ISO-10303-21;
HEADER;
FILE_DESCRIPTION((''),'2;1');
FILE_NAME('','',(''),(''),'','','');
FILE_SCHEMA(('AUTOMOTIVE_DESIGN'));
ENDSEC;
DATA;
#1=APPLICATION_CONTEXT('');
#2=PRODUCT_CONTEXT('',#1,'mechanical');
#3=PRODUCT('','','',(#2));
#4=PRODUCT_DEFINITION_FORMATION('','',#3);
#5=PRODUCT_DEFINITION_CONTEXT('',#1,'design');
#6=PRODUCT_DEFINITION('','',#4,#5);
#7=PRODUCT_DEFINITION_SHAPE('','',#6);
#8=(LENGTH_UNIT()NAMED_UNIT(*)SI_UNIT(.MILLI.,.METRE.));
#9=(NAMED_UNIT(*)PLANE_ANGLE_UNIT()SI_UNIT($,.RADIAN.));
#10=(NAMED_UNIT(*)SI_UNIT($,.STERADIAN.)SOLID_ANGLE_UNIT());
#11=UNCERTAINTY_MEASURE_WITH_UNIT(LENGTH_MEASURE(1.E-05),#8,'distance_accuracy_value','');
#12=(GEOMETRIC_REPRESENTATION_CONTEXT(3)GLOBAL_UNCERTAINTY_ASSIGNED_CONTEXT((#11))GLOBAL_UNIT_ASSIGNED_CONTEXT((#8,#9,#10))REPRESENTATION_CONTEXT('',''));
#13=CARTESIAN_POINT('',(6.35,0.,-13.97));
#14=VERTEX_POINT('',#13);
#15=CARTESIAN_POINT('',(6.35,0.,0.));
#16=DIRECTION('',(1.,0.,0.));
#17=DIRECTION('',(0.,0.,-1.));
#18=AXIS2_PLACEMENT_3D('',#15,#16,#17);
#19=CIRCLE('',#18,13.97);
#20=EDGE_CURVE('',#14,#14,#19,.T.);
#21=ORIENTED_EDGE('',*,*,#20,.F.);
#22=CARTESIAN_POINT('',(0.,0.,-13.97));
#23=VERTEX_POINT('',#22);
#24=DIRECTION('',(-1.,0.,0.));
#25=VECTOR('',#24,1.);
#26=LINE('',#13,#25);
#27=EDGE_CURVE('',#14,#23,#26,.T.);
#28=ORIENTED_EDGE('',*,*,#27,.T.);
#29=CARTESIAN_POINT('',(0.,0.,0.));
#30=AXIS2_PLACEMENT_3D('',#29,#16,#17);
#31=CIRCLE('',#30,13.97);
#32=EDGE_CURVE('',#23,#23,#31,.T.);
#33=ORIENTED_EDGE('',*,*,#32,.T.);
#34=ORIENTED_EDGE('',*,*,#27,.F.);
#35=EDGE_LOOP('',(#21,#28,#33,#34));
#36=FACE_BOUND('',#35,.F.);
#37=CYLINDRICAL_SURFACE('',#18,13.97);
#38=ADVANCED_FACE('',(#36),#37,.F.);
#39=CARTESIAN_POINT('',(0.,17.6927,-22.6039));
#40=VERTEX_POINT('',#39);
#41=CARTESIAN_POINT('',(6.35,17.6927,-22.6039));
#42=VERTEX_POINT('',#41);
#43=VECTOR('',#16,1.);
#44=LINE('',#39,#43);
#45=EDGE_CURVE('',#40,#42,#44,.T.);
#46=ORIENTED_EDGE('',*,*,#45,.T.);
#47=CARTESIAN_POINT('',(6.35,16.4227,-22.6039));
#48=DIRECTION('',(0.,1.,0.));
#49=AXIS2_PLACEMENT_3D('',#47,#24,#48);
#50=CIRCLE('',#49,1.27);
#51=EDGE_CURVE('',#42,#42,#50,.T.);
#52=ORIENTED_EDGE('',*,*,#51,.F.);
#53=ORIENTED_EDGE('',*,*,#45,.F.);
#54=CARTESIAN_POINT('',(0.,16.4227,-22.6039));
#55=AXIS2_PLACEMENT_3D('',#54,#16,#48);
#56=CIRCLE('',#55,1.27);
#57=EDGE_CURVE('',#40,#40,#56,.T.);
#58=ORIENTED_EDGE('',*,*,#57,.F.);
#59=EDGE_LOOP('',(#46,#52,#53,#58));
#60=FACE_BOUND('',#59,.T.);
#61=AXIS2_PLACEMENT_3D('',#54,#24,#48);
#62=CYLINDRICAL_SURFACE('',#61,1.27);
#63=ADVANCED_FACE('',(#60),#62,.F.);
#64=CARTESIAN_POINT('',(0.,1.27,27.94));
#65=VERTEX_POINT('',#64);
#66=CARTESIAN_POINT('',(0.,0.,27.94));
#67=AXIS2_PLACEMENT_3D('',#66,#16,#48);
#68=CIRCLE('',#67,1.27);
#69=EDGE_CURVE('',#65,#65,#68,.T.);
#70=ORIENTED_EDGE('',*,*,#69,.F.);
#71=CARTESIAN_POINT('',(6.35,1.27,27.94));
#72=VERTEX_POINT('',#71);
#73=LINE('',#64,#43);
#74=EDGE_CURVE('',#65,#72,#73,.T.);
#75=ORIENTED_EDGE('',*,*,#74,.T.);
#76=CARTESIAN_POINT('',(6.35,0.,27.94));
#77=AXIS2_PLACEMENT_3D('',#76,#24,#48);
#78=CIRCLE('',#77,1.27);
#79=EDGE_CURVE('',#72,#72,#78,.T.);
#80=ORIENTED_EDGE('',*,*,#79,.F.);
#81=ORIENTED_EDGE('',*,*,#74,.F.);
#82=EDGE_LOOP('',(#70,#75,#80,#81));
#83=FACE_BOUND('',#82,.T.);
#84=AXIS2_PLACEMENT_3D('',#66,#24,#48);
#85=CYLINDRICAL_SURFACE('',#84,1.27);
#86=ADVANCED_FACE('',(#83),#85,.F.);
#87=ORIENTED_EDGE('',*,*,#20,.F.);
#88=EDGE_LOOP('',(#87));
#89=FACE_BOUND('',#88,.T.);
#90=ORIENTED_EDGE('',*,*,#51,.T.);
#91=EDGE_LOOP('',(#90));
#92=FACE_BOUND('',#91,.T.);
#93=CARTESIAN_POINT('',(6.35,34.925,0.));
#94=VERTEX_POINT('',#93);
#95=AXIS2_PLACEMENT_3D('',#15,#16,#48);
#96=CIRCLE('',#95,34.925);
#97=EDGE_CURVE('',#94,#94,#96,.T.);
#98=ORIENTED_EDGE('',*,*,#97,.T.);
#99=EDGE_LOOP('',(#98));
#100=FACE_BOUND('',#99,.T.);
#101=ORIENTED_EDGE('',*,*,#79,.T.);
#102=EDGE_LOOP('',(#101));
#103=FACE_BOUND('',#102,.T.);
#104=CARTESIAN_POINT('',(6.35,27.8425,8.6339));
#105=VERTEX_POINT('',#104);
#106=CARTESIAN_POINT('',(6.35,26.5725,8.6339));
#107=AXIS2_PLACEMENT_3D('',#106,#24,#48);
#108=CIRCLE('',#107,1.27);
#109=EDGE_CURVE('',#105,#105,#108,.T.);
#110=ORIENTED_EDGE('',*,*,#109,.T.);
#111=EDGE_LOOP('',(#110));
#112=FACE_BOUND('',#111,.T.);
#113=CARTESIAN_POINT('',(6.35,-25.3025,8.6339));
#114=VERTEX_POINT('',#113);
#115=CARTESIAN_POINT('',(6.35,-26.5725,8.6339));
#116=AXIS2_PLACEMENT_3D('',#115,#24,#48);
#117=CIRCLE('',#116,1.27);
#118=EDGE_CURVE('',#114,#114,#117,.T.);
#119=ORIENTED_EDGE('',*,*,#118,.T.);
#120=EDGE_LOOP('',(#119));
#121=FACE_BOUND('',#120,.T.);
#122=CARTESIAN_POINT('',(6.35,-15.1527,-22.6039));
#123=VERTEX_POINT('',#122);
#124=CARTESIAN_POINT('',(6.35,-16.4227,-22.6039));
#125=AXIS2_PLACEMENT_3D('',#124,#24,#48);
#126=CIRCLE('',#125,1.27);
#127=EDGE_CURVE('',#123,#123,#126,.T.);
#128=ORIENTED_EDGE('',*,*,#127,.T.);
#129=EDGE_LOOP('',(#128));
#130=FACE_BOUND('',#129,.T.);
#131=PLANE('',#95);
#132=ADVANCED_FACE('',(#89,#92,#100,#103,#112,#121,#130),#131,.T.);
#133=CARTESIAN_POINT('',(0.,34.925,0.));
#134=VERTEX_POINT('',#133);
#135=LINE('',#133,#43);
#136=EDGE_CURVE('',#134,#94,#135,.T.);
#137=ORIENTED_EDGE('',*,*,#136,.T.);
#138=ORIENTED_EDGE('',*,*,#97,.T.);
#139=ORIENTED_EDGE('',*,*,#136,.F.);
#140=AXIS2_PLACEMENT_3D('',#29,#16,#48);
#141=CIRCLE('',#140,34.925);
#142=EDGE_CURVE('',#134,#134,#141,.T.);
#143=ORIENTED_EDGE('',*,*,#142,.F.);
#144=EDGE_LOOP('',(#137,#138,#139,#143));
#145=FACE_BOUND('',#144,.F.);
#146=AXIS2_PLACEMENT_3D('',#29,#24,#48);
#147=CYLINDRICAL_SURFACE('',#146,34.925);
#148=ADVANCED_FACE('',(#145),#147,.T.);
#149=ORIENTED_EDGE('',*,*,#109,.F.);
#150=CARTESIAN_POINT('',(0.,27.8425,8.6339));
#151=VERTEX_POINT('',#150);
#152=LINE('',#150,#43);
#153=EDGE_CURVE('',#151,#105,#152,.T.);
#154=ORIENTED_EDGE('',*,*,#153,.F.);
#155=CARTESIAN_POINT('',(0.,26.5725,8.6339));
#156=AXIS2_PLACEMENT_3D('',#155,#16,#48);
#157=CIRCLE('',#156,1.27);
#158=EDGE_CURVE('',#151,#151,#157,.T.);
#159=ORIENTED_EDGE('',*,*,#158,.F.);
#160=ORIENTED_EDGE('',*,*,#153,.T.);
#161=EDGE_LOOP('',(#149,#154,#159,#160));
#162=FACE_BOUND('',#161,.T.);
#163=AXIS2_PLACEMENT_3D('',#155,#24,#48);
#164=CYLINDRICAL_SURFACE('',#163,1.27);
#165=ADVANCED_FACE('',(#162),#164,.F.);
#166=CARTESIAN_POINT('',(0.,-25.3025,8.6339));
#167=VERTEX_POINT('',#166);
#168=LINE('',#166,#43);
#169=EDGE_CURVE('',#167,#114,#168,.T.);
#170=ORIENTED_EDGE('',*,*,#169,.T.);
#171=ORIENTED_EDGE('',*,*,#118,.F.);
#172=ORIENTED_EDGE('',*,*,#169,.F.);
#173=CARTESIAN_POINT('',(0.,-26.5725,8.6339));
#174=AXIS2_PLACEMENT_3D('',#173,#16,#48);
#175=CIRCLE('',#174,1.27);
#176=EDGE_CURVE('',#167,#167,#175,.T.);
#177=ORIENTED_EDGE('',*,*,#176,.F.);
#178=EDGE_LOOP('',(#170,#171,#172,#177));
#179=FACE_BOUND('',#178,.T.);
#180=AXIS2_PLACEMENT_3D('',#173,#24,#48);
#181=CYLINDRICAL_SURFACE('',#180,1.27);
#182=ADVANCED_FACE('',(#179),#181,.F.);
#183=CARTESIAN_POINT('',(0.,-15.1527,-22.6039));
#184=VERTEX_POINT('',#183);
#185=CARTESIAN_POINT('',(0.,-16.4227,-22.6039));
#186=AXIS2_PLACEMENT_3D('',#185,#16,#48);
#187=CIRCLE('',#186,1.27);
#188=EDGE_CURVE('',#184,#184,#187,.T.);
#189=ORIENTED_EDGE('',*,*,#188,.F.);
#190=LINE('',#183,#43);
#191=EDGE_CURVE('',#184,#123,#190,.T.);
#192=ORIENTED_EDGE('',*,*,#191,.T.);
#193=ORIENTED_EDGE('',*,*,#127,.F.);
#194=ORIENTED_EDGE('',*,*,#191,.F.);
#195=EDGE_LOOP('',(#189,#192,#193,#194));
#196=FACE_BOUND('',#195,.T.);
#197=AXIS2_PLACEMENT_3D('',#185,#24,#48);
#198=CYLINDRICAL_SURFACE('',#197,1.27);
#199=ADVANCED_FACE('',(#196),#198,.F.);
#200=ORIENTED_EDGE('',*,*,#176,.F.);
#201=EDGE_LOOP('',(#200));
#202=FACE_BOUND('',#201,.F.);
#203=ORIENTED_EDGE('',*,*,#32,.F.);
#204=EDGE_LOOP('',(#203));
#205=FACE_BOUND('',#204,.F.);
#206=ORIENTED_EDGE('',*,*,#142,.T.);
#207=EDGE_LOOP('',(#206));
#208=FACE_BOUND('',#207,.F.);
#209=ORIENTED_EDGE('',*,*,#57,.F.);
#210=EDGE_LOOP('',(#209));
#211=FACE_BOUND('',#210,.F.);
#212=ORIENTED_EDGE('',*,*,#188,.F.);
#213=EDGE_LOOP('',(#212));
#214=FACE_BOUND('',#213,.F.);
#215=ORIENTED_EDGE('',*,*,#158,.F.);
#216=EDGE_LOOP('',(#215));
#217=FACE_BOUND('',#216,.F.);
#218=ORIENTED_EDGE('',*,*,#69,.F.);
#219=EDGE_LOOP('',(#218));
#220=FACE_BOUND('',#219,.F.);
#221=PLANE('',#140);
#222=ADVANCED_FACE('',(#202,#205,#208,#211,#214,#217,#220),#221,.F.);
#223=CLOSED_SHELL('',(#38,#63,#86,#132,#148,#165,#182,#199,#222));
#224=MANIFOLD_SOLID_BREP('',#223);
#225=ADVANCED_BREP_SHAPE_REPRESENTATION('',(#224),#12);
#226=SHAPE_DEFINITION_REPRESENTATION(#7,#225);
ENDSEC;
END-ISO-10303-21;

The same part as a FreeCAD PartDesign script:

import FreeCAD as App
import Part
import Sketcher
from FreeCAD import Vector
Q = App.Units.Quantity

doc = App.newDocument("Part")
body = doc.addObject("PartDesign::Body", "Body")

# Sketch on YZ plane
sketch1 = body.newObject("Sketcher::SketchObject", "Sketch")
sketch1.AttachmentSupport = (doc.getObject("YZ_Plane"), [""])
sketch1.MapMode = "FlatFace"
sketch1.addGeometry(Part.Circle(Vector(0, 0, 0), Vector(0, 0, 1), 34.9), False)
sketch1.addGeometry(Part.Circle(Vector(0, 27.9, 0), Vector(0, 0, 1), 1.3), False)
sketch1.addGeometry(Part.Circle(Vector(-26.6, 8.6, 0), Vector(0, 0, 1), 1.3), False)
sketch1.addGeometry(Part.Circle(Vector(-16.4, -22.6, 0), Vector(0, 0, 1), 1.3), False)
sketch1.addGeometry(Part.Circle(Vector(16.4, -22.6, 0), Vector(0, 0, 1), 1.3), False)
sketch1.addGeometry(Part.Circle(Vector(26.6, 8.6, 0), Vector(0, 0, 1), 1.3), False)
sketch1.addGeometry(Part.Circle(Vector(0, 0, 0), Vector(0, 0, 1), 13.3), False)
sketch1.addConstraint(Sketcher.Constraint("Coincident", 0, 3, -1, 1))
sketch1.addConstraint(Sketcher.Constraint("Coincident", 6, 3, -1, 1))
sketch1.addConstraint(Sketcher.Constraint("Equal", 1, 2))
sketch1.addConstraint(Sketcher.Constraint("Equal", 2, 3))
sketch1.addConstraint(Sketcher.Constraint("Equal", 3, 4))
sketch1.addConstraint(Sketcher.Constraint("Equal", 4, 5))
sketch1.addConstraint(Sketcher.Constraint("Symmetric", 3, 3, 4, 3, -2))
sketch1.addConstraint(Sketcher.Constraint("Symmetric", 2, 3, 5, 3, -2))
sketch1.addConstraint(Sketcher.Constraint("PointOnObject", 1, 3, -2))
sketch1.addConstraint(Sketcher.Constraint("Diameter", 1, Q("0.1 in")))
sketch1.addConstraint(Sketcher.Constraint("Diameter", 0, Q("2.75 in")))
sketch1.addConstraint(Sketcher.Constraint("Diameter", 6, Q("1.05 in")))
sketch1.addConstraint(Sketcher.Constraint("DistanceY", -1, 1, 1, 3, Q("1.1 in")))
sketch1.addConstraint(Sketcher.Constraint("DistanceX", 2, 3, 3, 3, Q("0.3996 in")))
sketch1.addConstraint(Sketcher.Constraint("DistanceX", 2, 3, -1, 1, 26.5725))
sketch1.addConstraint(Sketcher.Constraint("DistanceY", -1, 1, 2, 3, 8.634))
sketch1.addConstraint(Sketcher.Constraint("DistanceY", 3, 3, -1, 1, 22.604))
pad1 = body.newObject("PartDesign::Pad", "Pad")
pad1.Profile = sketch1
pad1.Length = Q("0.25 in")

# Sketch on YZ plane
sketch2 = body.newObject("Sketcher::SketchObject", "Sketch001")
sketch2.AttachmentSupport = (doc.getObject("YZ_Plane"), [""])
sketch2.MapMode = "FlatFace"
sketch2.AttachmentOffset = App.Placement(Vector(0, 0, 0.25 * 25.4), App.Rotation())
sketch2.addGeometry(Part.Circle(Vector(0, 0, 0), Vector(0, 0, 1), 14), False)
sketch2.addConstraint(Sketcher.Constraint("Coincident", 0, 3, -1, 1))
sketch2.addConstraint(Sketcher.Constraint("Diameter", 0, Q("1.1 in")))
pocket1 = body.newObject("PartDesign::Pocket", "Pocket")
pocket1.Profile = sketch2
pocket1.Length = Q("0.4375 in")

doc.recompute()
